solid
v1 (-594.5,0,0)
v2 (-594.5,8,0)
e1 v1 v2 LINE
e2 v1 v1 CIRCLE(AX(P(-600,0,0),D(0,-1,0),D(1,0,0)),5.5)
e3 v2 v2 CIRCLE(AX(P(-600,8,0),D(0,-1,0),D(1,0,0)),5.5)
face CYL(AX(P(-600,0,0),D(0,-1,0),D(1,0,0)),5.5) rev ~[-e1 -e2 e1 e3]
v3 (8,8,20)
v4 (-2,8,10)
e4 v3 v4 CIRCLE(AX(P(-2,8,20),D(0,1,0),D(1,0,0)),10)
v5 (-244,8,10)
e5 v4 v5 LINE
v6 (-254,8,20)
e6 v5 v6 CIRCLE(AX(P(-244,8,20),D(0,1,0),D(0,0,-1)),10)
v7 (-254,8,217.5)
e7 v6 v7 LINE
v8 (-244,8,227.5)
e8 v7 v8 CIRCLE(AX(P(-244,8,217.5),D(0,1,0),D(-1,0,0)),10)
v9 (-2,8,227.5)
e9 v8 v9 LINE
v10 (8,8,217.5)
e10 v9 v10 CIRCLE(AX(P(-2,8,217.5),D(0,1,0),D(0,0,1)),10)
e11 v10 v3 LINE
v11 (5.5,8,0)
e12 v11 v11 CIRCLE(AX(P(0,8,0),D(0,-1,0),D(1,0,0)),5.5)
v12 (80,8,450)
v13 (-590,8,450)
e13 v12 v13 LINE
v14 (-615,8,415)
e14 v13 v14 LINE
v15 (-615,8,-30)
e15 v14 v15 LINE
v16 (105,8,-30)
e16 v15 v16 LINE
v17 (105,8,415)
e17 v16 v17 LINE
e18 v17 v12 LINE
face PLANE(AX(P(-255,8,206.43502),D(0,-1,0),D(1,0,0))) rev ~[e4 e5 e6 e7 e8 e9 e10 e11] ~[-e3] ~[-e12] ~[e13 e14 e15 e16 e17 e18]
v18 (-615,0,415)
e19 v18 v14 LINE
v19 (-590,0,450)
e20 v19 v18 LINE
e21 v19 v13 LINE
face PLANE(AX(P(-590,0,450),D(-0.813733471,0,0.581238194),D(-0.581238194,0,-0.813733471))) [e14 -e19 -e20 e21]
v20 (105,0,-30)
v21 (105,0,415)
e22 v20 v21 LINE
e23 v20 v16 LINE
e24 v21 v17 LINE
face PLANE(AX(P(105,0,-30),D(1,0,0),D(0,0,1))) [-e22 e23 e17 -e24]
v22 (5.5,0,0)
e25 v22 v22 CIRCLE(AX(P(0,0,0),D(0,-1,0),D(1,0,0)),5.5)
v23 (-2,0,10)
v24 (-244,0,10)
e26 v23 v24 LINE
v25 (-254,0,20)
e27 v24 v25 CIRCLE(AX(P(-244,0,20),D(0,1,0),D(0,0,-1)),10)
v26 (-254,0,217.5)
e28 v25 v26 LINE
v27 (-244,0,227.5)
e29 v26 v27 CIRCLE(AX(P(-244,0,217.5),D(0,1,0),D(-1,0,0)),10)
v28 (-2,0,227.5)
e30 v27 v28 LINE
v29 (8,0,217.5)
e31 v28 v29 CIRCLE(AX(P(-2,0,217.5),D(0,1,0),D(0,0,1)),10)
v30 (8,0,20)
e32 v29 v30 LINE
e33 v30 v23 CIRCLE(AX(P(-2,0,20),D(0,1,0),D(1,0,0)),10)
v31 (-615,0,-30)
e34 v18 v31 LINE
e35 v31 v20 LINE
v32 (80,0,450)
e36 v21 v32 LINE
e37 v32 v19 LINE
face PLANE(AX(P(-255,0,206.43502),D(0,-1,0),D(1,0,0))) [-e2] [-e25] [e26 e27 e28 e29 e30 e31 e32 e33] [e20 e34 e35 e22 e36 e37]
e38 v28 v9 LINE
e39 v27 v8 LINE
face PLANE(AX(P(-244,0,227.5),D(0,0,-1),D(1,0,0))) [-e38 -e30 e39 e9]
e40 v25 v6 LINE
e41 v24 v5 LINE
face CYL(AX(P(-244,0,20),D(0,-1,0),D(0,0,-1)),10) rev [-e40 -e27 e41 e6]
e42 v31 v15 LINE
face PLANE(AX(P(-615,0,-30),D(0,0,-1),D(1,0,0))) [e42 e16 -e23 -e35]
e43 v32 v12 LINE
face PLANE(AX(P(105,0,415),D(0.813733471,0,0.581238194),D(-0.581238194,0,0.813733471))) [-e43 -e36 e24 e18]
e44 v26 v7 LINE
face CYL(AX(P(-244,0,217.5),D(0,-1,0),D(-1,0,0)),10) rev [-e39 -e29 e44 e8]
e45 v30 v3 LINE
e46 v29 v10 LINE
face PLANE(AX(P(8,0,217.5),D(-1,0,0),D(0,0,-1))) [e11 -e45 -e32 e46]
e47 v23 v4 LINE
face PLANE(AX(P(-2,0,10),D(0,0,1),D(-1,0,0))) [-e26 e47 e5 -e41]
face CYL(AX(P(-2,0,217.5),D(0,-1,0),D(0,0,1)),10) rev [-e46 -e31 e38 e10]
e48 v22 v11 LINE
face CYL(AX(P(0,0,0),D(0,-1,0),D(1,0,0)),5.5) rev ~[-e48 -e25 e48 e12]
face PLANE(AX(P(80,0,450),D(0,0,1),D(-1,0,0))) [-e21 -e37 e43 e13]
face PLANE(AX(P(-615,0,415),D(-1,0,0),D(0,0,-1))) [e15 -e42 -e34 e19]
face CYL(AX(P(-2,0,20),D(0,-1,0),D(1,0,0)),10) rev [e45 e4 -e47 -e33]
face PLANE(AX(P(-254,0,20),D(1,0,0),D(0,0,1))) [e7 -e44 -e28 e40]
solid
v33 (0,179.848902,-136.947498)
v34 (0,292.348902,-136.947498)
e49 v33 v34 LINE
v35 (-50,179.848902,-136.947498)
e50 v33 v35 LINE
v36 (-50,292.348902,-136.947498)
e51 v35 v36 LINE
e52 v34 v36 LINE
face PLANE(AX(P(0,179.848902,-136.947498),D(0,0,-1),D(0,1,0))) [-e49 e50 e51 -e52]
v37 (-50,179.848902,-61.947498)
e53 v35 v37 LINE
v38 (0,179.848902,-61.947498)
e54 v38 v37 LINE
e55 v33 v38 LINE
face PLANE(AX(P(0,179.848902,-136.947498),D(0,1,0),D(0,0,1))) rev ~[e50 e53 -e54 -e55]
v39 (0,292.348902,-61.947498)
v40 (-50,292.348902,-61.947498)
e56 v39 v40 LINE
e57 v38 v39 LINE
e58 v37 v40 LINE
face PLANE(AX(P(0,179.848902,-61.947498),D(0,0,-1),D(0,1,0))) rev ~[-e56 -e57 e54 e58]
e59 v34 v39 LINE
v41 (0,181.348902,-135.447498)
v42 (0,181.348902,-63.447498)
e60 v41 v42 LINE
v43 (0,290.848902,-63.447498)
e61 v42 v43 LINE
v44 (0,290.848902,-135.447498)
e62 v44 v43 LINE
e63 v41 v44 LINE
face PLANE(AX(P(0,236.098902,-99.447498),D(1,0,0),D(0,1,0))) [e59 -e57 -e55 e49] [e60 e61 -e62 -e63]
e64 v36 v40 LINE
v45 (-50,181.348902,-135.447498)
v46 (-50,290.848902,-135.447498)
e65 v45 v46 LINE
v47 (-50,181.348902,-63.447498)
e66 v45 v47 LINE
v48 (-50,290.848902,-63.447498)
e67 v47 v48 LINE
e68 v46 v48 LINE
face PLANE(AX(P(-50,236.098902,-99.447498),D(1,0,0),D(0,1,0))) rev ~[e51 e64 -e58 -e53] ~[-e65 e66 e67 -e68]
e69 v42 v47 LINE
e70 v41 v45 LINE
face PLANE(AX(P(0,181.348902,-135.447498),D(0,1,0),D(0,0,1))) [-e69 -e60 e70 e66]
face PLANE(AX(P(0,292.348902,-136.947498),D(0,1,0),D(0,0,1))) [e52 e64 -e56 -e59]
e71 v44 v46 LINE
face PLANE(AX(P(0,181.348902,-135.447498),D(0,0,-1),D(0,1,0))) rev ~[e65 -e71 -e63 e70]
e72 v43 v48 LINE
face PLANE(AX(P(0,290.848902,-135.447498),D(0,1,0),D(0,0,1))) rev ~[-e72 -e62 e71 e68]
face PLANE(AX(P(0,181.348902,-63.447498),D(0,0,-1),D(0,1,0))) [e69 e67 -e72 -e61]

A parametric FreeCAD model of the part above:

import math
import FreeCAD as App
import Part
import Sketcher
Q = App.Units.Quantity

doc = App.newDocument("Part")
body = doc.addObject("PartDesign::Body", "Body")

# Sketch on XZ plane
sketch1 = doc.addObject("Sketcher::SketchObject", "Sketch")
body.addObject(sketch1)
sketch1.AttachmentSupport = (doc.XZ_Plane, [""])
sketch1.MapMode = "FlatFace"
sketch1.addGeometry([
    Part.LineSegment(App.Vector(80, 450, 0), App.Vector(-590, 450, 0)),  # 0
    Part.LineSegment(App.Vector(-590, 450, 0), App.Vector(-615, 415, 0)),  # 1
    Part.LineSegment(App.Vector(-615, 415, 0), App.Vector(-615, -30, 0)),  # 2
    Part.LineSegment(App.Vector(-615, -30, 0), App.Vector(105, -30, 0)),  # 3
    Part.LineSegment(App.Vector(105, -30, 0), App.Vector(105, 415, 0)),  # 4
    Part.LineSegment(App.Vector(105, 415, 0), App.Vector(80, 450, 0)),  # 5
    Part.Circle(App.Vector(-600, 0, 0), App.Vector(0, 0, 1), 6),  # 6
    Part.Circle(App.Vector(0, 0, 0), App.Vector(0, 0, 1), 6),  # 7
    Part.LineSegment(App.Vector(-254, 20, 0), App.Vector(-254, 218, 0)),  # 8
    Part.ArcOfCircle(Part.Circle(App.Vector(-244, 218, 0), App.Vector(0, 0, 1), 10), math.radians(90), math.radians(180)),  # 9
    Part.LineSegment(App.Vector(-244, 228, 0), App.Vector(-2, 228, 0)),  # 10
    Part.ArcOfCircle(Part.Circle(App.Vector(-2, 218, 0), App.Vector(0, 0, 1), 10), math.radians(0), math.radians(90)),  # 11
    Part.LineSegment(App.Vector(8, 218, 0), App.Vector(8, 20, 0)),  # 12
    Part.ArcOfCircle(Part.Circle(App.Vector(-2, 20, 0), App.Vector(0, 0, 1), 10), math.radians(-90), math.radians(0)),  # 13
    Part.LineSegment(App.Vector(-2, 10, 0), App.Vector(-244, 10, 0)),  # 14
    Part.ArcOfCircle(Part.Circle(App.Vector(-244, 20, 0), App.Vector(0, 0, 1), 10), math.radians(180), math.radians(270)),  # 15
], False)
sketch1.addConstraint([
    Sketcher.Constraint("Coincident", 0, 2, 1, 1),
    Sketcher.Constraint("Coincident", 1, 2, 2, 1),
    Sketcher.Constraint("Coincident", 2, 2, 3, 1),
    Sketcher.Constraint("Coincident", 3, 2, 4, 1),
    Sketcher.Constraint("Coincident", 4, 2, 5, 1),
    Sketcher.Constraint("Coincident", 5, 2, 0, 1),
    Sketcher.Constraint("Tangent", 8, 2, 9, 2),
    Sketcher.Constraint("Tangent", 9, 1, 10, 1),
    Sketcher.Constraint("Tangent", 10, 2, 11, 2),
    Sketcher.Constraint("Tangent", 11, 1, 12, 1),
    Sketcher.Constraint("Tangent", 12, 2, 13, 2),
    Sketcher.Constraint("Tangent", 13, 1, 14, 1),
    Sketcher.Constraint("Tangent", 14, 2, 15, 2),
    Sketcher.Constraint("Tangent", 15, 1, 8, 1),
    Sketcher.Constraint("Horizontal", 0),
    Sketcher.Constraint("Vertical", 2),
    Sketcher.Constraint("Horizontal", 3),
    Sketcher.Constraint("Vertical", 4),
    Sketcher.Constraint("Vertical", 8),
    Sketcher.Constraint("Horizontal", 10),
    Sketcher.Constraint("Vertical", 12),
    Sketcher.Constraint("Horizontal", 14),
    Sketcher.Constraint("Coincident", 7, 3, -1, 1),
    Sketcher.Constraint("Equal", 6, 7),
    Sketcher.Constraint("Equal", 9, 11),
    Sketcher.Constraint("Equal", 11, 13),
    Sketcher.Constraint("Equal", 13, 15),
    Sketcher.Constraint("PointOnObject", 6, 3, -1),
    Sketcher.Constraint("Horizontal", 1, 2, 4, 2),
    Sketcher.Constraint("Equal", 1, 5),
    Sketcher.Constraint("Diameter", 6, Q("11 mm")),
    Sketcher.Constraint("Radius", 9, Q("10 mm")),
    Sketcher.Constraint("DistanceX", 0, 2, 0, 1, Q("670 mm")),
    Sketcher.Constraint("DistanceX", 3, 1, 3, 2, Q("720 mm")),
    Sketcher.Constraint("DistanceX", 10, 1, 10, 2, Q("242 mm")),
    Sketcher.Constraint("DistanceY", 2, 2, 2, 1, Q("445 mm")),
    Sketcher.Constraint("DistanceY", 8, 1, 8, 2, Q("197.5 mm")),
    Sketcher.Constraint("DistanceX", 6, 3, -1, 1, Q("600 mm")),
    Sketcher.Constraint("DistanceX", 9, 3, -1, 1, Q("244 mm")),
    Sketcher.Constraint("DistanceY", -1, 1, 13, 3, Q("20 mm")),
    Sketcher.Constraint("DistanceX", 0, 2, -1, 1, Q("590 mm")),
    Sketcher.Constraint("DistanceY", -1, 1, 0, 2, Q("450 mm")),
    Sketcher.Constraint("DistanceY", -1, 1, 1, 2, Q("415 mm")),
])
pad1 = doc.addObject("PartDesign::Pad", "Pad")
body.addObject(pad1)
pad1.Profile = sketch1
pad1.Length = 8
pad1.Reversed = True
body2 = doc.addObject("PartDesign::Body", "Body001")

# Sketch on YZ plane
sketch2 = doc.addObject("Sketcher::SketchObject", "Sketch001")
body2.addObject(sketch2)
sketch2.AttachmentSupport = (doc.getObject("YZ_Plane001"), [""])
sketch2.MapMode = "FlatFace"
sketch2.addGeometry([
    Part.LineSegment(App.Vector(180, -62, 0), App.Vector(180, -137, 0)),  # 0
    Part.LineSegment(App.Vector(180, -137, 0), App.Vector(292, -137, 0)),  # 1
    Part.LineSegment(App.Vector(292, -137, 0), App.Vector(292, -62, 0)),  # 2
    Part.LineSegment(App.Vector(292, -62, 0), App.Vector(180, -62, 0)),  # 3
    Part.LineSegment(App.Vector(291, -135, 0), App.Vector(181, -135, 0)),  # 4
    Part.LineSegment(App.Vector(181, -135, 0), App.Vector(181, -63, 0)),  # 5
    Part.LineSegment(App.Vector(181, -63, 0), App.Vector(291, -63, 0)),  # 6
    Part.LineSegment(App.Vector(291, -63, 0), App.Vector(291, -135, 0)),  # 7
], False)
sketch2.addConstraint([
    Sketcher.Constraint("Coincident", 0, 2, 1, 1),
    Sketcher.Constraint("Coincident", 1, 2, 2, 1),
    Sketcher.Constraint("Coincident", 2, 2, 3, 1),
    Sketcher.Constraint("Coincident", 3, 2, 0, 1),
    Sketcher.Constraint("Coincident", 4, 2, 5, 1),
    Sketcher.Constraint("Coincident", 5, 2, 6, 1),
    Sketcher.Constraint("Coincident", 6, 2, 7, 1),
    Sketcher.Constraint("Coincident", 7, 2, 4, 1),
    Sketcher.Constraint("Vertical", 0),
    Sketcher.Constraint("Horizontal", 1),
    Sketcher.Constraint("Vertical", 2),
    Sketcher.Constraint("Horizontal", 3),
    Sketcher.Constraint("Horizontal", 4),
    Sketcher.Constraint("Vertical", 5),
    Sketcher.Constraint("Horizontal", 6),
    Sketcher.Constraint("Vertical", 7),
    Sketcher.Constraint("DistanceY", 0, 2, 0, 1, Q("75 mm")),
    Sketcher.Constraint("DistanceY", 5, 1, 5, 2, Q("72 mm")),
    Sketcher.Constraint("DistanceX", 1, 1, 1, 2, Q("112.5 mm")),
    Sketcher.Constraint("DistanceX", 4, 2, 4, 1, Q("109.5 mm")),
    Sketcher.Constraint("DistanceX", 4, 2, 1, 2, Q("111 mm")),
    Sketcher.Constraint("DistanceY", 0, 2, 4, 2, Q("1.5 mm")),
    Sketcher.Constraint("DistanceX", -1, 1, 0, 2, Q("179.848902 mm")),
    Sketcher.Constraint("DistanceY", 0, 2, -1, 1, Q("136.947498 mm")),
])
pad2 = doc.addObject("PartDesign::Pad", "Pad001")
body2.addObject(pad2)
pad2.Profile = sketch2
pad2.Length = 50
pad2.Reversed = True

doc.recompute()
